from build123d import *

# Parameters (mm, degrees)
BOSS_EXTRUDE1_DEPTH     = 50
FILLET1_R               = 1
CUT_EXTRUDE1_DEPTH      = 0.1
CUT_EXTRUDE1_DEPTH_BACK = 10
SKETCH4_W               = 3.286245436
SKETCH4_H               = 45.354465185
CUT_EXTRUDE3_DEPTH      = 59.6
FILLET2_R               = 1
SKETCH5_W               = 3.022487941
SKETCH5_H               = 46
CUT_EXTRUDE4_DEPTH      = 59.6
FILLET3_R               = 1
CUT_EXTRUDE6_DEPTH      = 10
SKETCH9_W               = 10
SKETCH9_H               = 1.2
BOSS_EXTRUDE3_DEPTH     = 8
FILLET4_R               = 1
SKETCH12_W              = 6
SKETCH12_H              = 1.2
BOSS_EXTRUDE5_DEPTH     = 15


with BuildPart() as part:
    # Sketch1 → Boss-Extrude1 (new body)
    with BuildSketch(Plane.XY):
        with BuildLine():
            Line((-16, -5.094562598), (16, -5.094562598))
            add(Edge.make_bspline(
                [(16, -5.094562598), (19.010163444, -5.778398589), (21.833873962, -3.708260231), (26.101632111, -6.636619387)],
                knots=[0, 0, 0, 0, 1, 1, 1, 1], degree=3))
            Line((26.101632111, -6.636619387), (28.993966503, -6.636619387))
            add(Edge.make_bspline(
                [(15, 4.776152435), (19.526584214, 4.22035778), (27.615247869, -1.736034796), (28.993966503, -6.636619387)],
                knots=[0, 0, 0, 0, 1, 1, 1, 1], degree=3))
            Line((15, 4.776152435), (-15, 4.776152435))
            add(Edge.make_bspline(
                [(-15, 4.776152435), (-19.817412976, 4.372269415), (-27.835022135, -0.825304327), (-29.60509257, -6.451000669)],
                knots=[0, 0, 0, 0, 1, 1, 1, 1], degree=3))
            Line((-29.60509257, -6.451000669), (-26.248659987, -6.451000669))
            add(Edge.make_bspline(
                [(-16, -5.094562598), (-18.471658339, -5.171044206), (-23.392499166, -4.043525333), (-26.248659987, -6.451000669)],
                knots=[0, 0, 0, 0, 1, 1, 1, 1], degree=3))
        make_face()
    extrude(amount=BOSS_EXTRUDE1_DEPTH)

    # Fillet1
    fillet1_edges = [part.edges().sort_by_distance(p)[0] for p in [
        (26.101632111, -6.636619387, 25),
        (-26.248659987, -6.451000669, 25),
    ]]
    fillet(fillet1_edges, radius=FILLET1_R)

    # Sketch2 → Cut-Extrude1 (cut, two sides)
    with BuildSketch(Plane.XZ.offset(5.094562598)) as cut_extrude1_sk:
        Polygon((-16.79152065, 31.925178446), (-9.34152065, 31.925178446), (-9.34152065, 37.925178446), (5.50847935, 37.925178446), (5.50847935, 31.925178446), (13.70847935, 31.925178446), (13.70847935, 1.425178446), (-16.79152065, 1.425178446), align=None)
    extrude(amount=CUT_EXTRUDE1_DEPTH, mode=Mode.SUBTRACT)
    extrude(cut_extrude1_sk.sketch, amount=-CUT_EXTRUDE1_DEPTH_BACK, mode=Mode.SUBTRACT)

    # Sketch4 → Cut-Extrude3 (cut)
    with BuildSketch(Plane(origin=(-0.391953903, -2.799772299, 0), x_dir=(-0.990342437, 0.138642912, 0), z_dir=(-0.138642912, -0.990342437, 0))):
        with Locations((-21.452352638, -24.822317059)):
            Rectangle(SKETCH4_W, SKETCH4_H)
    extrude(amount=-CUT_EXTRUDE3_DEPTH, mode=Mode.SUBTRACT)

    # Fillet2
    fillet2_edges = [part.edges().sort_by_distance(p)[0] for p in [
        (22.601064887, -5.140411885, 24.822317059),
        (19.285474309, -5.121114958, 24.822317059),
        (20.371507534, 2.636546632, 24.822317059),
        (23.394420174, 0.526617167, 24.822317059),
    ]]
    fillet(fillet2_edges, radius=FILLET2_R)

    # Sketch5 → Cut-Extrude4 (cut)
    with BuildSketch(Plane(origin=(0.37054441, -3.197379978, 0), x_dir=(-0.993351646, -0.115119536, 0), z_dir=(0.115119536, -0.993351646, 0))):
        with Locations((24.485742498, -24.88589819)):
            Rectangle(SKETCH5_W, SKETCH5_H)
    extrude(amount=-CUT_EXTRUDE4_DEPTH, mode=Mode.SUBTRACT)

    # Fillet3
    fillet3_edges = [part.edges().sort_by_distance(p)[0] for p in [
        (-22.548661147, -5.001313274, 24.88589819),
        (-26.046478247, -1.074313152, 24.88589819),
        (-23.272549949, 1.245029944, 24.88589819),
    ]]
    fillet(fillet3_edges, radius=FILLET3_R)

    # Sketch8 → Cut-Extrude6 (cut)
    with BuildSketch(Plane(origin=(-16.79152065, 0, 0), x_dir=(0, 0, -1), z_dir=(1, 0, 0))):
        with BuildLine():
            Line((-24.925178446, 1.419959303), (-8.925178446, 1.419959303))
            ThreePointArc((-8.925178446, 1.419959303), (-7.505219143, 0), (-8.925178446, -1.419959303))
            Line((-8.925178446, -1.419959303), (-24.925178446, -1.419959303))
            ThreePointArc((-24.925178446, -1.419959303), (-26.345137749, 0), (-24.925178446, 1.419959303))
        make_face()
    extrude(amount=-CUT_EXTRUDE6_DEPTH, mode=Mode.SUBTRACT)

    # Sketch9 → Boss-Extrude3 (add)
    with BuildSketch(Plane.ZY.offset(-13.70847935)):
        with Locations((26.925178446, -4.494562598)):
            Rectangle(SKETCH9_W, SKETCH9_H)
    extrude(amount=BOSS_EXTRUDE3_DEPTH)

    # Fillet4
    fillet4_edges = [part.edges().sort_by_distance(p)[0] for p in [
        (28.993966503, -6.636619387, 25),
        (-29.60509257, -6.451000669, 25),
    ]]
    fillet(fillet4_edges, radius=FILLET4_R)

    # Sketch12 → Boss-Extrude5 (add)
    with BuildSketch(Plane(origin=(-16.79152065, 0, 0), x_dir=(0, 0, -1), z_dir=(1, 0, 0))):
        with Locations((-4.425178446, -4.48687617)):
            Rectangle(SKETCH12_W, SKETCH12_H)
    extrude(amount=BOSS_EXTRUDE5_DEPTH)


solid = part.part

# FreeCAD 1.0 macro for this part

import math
import FreeCAD as App
import Part
import Sketcher
from FreeCAD import Vector
Q = App.Units.Quantity


def edges_at(feature, points):
    """Names of the edges that pass closest to the given points."""
    edges = feature.Shape.Edges
    near = lambda p: min(range(len(edges)), key=lambda i: edges[i].distToShape(Part.Vertex(*p))[0])
    return sorted({f"Edge{near(p) + 1}" for p in points})


def add_polygon(sketch, points):
    """Adds a closed chain of lines whose ends are joined by coincident constraints."""
    first, n = sketch.GeometryCount, len(points)
    for a, b in zip(points, points[1:] + points[:1]):
        sketch.addGeometry(Part.LineSegment(App.Vector(*a, 0), App.Vector(*b, 0)), False)
    for i in range(n):
        sketch.addConstraint(Sketcher.Constraint("Coincident", first + i, 2, first + (i + 1) % n, 1))

doc = App.newDocument("Part")
params = doc.addObject("Spreadsheet::Sheet", "Params")
for row, (alias, value) in enumerate([
    ("pad1_length", "50 mm"),
    ("fillet_radius", "1 mm"),
    ("sketch2_height", "6 mm"),
    ("sketch2_width", "30.5 mm"),
    ("sketch2_width2", "8.2 mm"),
    ("sketch2_width3", "7.45 mm"),
    ("pocket2_length", "59.6 mm"),
    ("fillet2_radius", "1 mm"),
    ("sketch4_height", "46 mm"),
    ("pocket3_length", "59.6 mm"),
    ("fillet3_radius", "1 mm"),
    ("sketch5_height", "16 mm"),
    ("pocket4_length", "10 mm"),
    ("sketch6_height", "10 mm"),
    ("sketch6_width", "1.2 mm"),
    ("pad2_length", "8 mm"),
    ("fillet4_radius", "1 mm"),
    ("sketch7_height", "6 mm"),
    ("sketch7_width", "1.2 mm"),
    ("pad3_length", "15 mm"),
], start=1):
    params.set(f"A{row}", alias)
    params.set(f"B{row}", "=" + value)
    params.setAlias(f"B{row}", alias)

body = doc.addObject("PartDesign::Body", "Body")

sketch1 = doc.addObject("Sketcher::SketchObject", "Sketch")
body.addObject(sketch1)
sketch1.AttachmentSupport = (doc.XY_Plane, [""])
sketch1.MapMode = "FlatFace"
sketch1.addGeometry(Part.LineSegment(Vector(-16, -5.094563, 0), Vector(16, -5.094563, 0)), False)
sketch1.addGeometry(Part.BSplineCurve([Vector(16, -5.094563, 0), Vector(19.010163, -5.778399, 0), Vector(21.833874, -3.70826, 0), Vector(26.101632, -6.636619, 0)], [4, 4], [0, 1], False, 3, [1, 1, 1, 1], False), False)
sketch1.addGeometry(Part.LineSegment(Vector(26.101632, -6.636619, 0), Vector(28.993967, -6.636619, 0)), False)
sketch1.addGeometry(Part.BSplineCurve([Vector(15, 4.776152, 0), Vector(19.526584, 4.220358, 0), Vector(27.615248, -1.736035, 0), Vector(28.993967, -6.636619, 0)], [4, 4], [0, 1], False, 3, [1, 1, 1, 1], False), False)
sketch1.addGeometry(Part.LineSegment(Vector(15, 4.776152, 0), Vector(-15, 4.776152, 0)), False)
sketch1.addGeometry(Part.BSplineCurve([Vector(-15, 4.776152, 0), Vector(-19.817413, 4.372269, 0), Vector(-27.835022, -0.825304, 0), Vector(-29.605093, -6.451001, 0)], [4, 4], [0, 1], False, 3, [1, 1, 1, 1], False), False)
sketch1.addGeometry(Part.LineSegment(Vector(-29.605093, -6.451001, 0), Vector(-26.24866, -6.451001, 0)), False)
sketch1.addGeometry(Part.BSplineCurve([Vector(-16, -5.094563, 0), Vector(-18.471658, -5.171044, 0), Vector(-23.392499, -4.043525, 0), Vector(-26.24866, -6.451001, 0)], [4, 4], [0, 1], False, 3, [1, 1, 1, 1], False), False)
sketch1.addConstraint(Sketcher.Constraint("Block", 1))
sketch1.addConstraint(Sketcher.Constraint("Block", 3))
sketch1.addConstraint(Sketcher.Constraint("Block", 5))
sketch1.addConstraint(Sketcher.Constraint("Block", 7))
sketch1.addConstraint(Sketcher.Constraint("Coincident", 0, 2, 1, 1))
sketch1.addConstraint(Sketcher.Constraint("Coincident", 1, 2, 2, 1))
sketch1.addConstraint(Sketcher.Constraint("Coincident", 2, 2, 3, 2))
sketch1.addConstraint(Sketcher.Constraint("Coincident", 3, 1, 4, 1))
sketch1.addConstraint(Sketcher.Constraint("Coincident", 4, 2, 5, 1))
sketch1.addConstraint(Sketcher.Constraint("Coincident", 5, 2, 6, 1))
sketch1.addConstraint(Sketcher.Constraint("Coincident", 6, 2, 7, 2))
sketch1.addConstraint(Sketcher.Constraint("Coincident", 7, 1, 0, 1))
pad1 = doc.addObject("PartDesign::Pad", "Pad")
body.addObject(pad1)
pad1.Profile = sketch1
pad1.setExpression("Length", "Params.pad1_length")
doc.recompute()

fillet = doc.addObject("PartDesign::Fillet", "Fillet")
body.addObject(fillet)
fillet.Base = (pad1, edges_at(pad1, [(26.102, -6.637, 25), (-26.249, -6.451, 25)]))
fillet.setExpression("Radius", "Params.fillet_radius")

sketch2 = doc.addObject("Sketcher::SketchObject", "Sketch001")
body.addObject(sketch2)
sketch2.AttachmentSupport = (doc.XZ_Plane, [""])
sketch2.MapMode = "FlatFace"
sketch2.AttachmentOffset = App.Placement(Vector(0, 0, 5.094563), App.Rotation())
add_polygon(sketch2, [(-9, 32), (-17, 32), (-17, 1), (14, 1), (14, 32), (6, 32), (6, 38), (-9, 38)])
sketch2.addConstraint(Sketcher.Constraint("Horizontal", 0))
sketch2.addConstraint(Sketcher.Constraint("Vertical", 1))
sketch2.addConstraint(Sketcher.Constraint("Horizontal", 2))
sketch2.addConstraint(Sketcher.Constraint("Vertical", 3))
sketch2.addConstraint(Sketcher.Constraint("Horizontal", 4))
sketch2.addConstraint(Sketcher.Constraint("Vertical", 5))
sketch2.addConstraint(Sketcher.Constraint("Horizontal", 6))
sketch2.addConstraint(Sketcher.Constraint("Vertical", 7))
sketch2.addConstraint(Sketcher.Constraint("Horizontal", 0, 2, 3, 2))
sketch2.addConstraint(Sketcher.Constraint("Equal", 2, 1))
sketch2.addConstraint(Sketcher.Constraint("DistanceY", 5, 1, 5, 2, Q("6 mm")))
sketch2.addConstraint(Sketcher.Constraint("DistanceX", 2, 1, 2, 2, Q("30.5 mm")))
sketch2.addConstraint(Sketcher.Constraint("DistanceX", 4, 2, 4, 1, Q("8.2 mm")))
sketch2.addConstraint(Sketcher.Constraint("DistanceX", 0, 2, 0, 1, Q("7.45 mm")))
sketch2.addConstraint(Sketcher.Constraint("DistanceX", 0, 2, -1, 1, Q("16.791521 mm")))
sketch2.addConstraint(Sketcher.Constraint("DistanceY", -1, 1, 0, 2, Q("31.925178 mm")))
sketch2.setExpression("Constraints[18]", "Params.sketch2_height")
sketch2.setExpression("Constraints[19]", "Params.sketch2_width")
sketch2.setExpression("Constraints[20]", "Params.sketch2_width2")
sketch2.setExpression("Constraints[21]", "Params.sketch2_width3")
pocket1 = doc.addObject("PartDesign::Pocket", "Pocket")
body.addObject(pocket1)
pocket1.Profile = sketch2
pocket1.Type = "ThroughAll"
pocket1.Midplane = True

sketch3 = doc.addObject("Sketcher::SketchObject", "Sketch002")
body.addObject(sketch3)
sketch3.Placement = App.Placement(Vector(-0.391954, -2.799772, 0), App.Rotation(Vector(-0.990342437, 0.138642912, 0), Vector(0, 0, -1), Vector(-0.138642912, -0.990342437, 0), "ZXY"))
add_polygon(sketch3, [(-23.1, -2.1), (-23.1, -47.5), (-19.8, -47.5), (-19.8, -2.1)])
sketch3.addConstraint(Sketcher.Constraint("Vertical", 0))
sketch3.addConstraint(Sketcher.Constraint("Horizontal", 1))
sketch3.addConstraint(Sketcher.Constraint("Vertical", 2))
sketch3.addConstraint(Sketcher.Constraint("Horizontal", 3))
sketch3.addConstraint(Sketcher.Constraint("DistanceX", 1, 1, 1, 2, Q("3.286245 mm")))
sketch3.addConstraint(Sketcher.Constraint("DistanceY", 0, 2, 0, 1, Q("45.354465 mm")))
sketch3.addConstraint(Sketcher.Constraint("DistanceY", 0, 2, -1, 1, Q("47.49955 mm")))
sketch3.addConstraint(Sketcher.Constraint("DistanceX", 1, 2, -1, 1, Q("19.80923 mm")))
pocket2 = doc.addObject("PartDesign::Pocket", "Pocket001")
body.addObject(pocket2)
pocket2.Profile = sketch3
pocket2.setExpression("Length", "Params.pocket2_length")
doc.recompute()

fillet2 = doc.addObject("PartDesign::Fillet", "Fillet001")
body.addObject(fillet2)
fillet2.Base = (pocket2, edges_at(pocket2, [
    (22.601, -5.14, 24.822),
    (19.285, -5.121, 24.822),
    (20.372, 2.637, 24.822),
    (23.394, 0.527, 24.822),
]))
fillet2.setExpression("Radius", "Params.fillet2_radius")

sketch4 = doc.addObject("Sketcher::SketchObject", "Sketch003")
body.addObject(sketch4)
sketch4.Placement = App.Placement(Vector(0.370544, -3.19738, 0), App.Rotation(Vector(-0.993351646, -0.115119536, 0), Vector(0, 0, -1), Vector(0.115119536, -0.993351646, 0), "ZXY"))
add_polygon(sketch4, [(23, -1.9), (23, -47.9), (26, -47.9), (26, -1.9)])
sketch4.addConstraint(Sketcher.Constraint("Vertical", 0))
sketch4.addConstraint(Sketcher.Constraint("Horizontal", 1))
sketch4.addConstraint(Sketcher.Constraint("Vertical", 2))
sketch4.addConstraint(Sketcher.Constraint("Horizontal", 3))
sketch4.addConstraint(Sketcher.Constraint("DistanceY", 0, 2, 0, 1, Q("46 mm")))
sketch4.addConstraint(Sketcher.Constraint("DistanceX", -1, 1, 0, 2, Q("22.974499 mm")))
sketch4.addConstraint(Sketcher.Constraint("DistanceY", 0, 2, -1, 1, Q("47.885898 mm")))
sketch4.addConstraint(Sketcher.Constraint("DistanceX", 1, 1, 1, 2, Q("3.022488 mm")))
sketch4.setExpression("Constraints[8]", "Params.sketch4_height")
pocket3 = doc.addObject("PartDesign::Pocket", "Pocket002")
body.addObject(pocket3)
pocket3.Profile = sketch4
pocket3.setExpression("Length", "Params.pocket3_length")
doc.recompute()

fillet3 = doc.addObject("PartDesign::Fillet", "Fillet002")
body.addObject(fillet3)
fillet3.Base = (pocket3, edges_at(pocket3, [(-22.549, -5.001, 24.886), (-26.046, -1.074, 24.886), (-23.273, 1.245, 24.886)]))
fillet3.setExpression("Radius", "Params.fillet3_radius")

sketch5 = doc.addObject("Sketcher::SketchObject", "Sketch004")
body.addObject(sketch5)
sketch5.AttachmentSupport = (doc.YZ_Plane, [""])
sketch5.MapMode = "FlatFace"
sketch5.AttachmentOffset = App.Placement(Vector(0, 0, -16.791521), App.Rotation())
sketch5.addGeometry(Part.LineSegment(Vector(1.4, 8.9, 0), Vector(1.4, 24.9, 0)), False)
sketch5.addGeometry(Part.ArcOfCircle(Part.Circle(Vector(0, 24.9, 0), Vector(0, 0, 1), 1.4), math.radians(0), math.radians(180)), False)
sketch5.addGeometry(Part.LineSegment(Vector(-1.4, 24.9, 0), Vector(-1.4, 8.9, 0)), False)
sketch5.addGeometry(Part.ArcOfCircle(Part.Circle(Vector(0, 8.9, 0), Vector(0, 0, 1), 1.4), math.radians(180), math.radians(360)), False)
sketch5.addConstraint(Sketcher.Constraint("Tangent", 0, 2, 1, 1))
sketch5.addConstraint(Sketcher.Constraint("Tangent", 1, 2, 2, 1))
sketch5.addConstraint(Sketcher.Constraint("Tangent", 2, 2, 3, 1))
sketch5.addConstraint(Sketcher.Constraint("Tangent", 3, 2, 0, 1))
sketch5.addConstraint(Sketcher.Constraint("Vertical", 0))
sketch5.addConstraint(Sketcher.Constraint("Vertical", 2))
sketch5.addConstraint(Sketcher.Constraint("PointOnObject", 1, 3, -2))
sketch5.addConstraint(Sketcher.Constraint("DistanceY", 0, 1, 0, 2, Q("16 mm")))
sketch5.addConstraint(Sketcher.Constraint("Radius", 1, Q("1.419959 mm")))
sketch5.addConstraint(Sketcher.Constraint("DistanceY", -1, 1, 1, 3, Q("24.925178 mm")))
sketch5.setExpression("Constraints[7]", "Params.sketch5_height")
pocket4 = doc.addObject("PartDesign::Pocket", "Pocket003")
body.addObject(pocket4)
pocket4.Profile = sketch5
pocket4.setExpression("Length", "Params.pocket4_length")

sketch6 = doc.addObject("Sketcher::SketchObject", "Sketch005")
body.addObject(sketch6)
sketch6.AttachmentSupport = (doc.YZ_Plane, [""])
sketch6.MapMode = "FlatFace"
sketch6.AttachmentOffset = App.Placement(Vector(0, 0, 13.708479), App.Rotation())
add_polygon(sketch6, [(-3.9, 21.9), (-5.1, 21.9), (-5.1, 31.9), (-3.9, 31.9)])
sketch6.addConstraint(Sketcher.Constraint("Horizontal", 0))
sketch6.addConstraint(Sketcher.Constraint("Vertical", 1))
sketch6.addConstraint(Sketcher.Constraint("Horizontal", 2))
sketch6.addConstraint(Sketcher.Constraint("Vertical", 3))
sketch6.addConstraint(Sketcher.Constraint("DistanceY", 1, 1, 1, 2, Q("10 mm")))
sketch6.addConstraint(Sketcher.Constraint("DistanceX", 0, 2, 0, 1, Q("1.2 mm")))
sketch6.addConstraint(Sketcher.Constraint("DistanceY", -1, 1, 0, 2, Q("21.925178 mm")))
sketch6.addConstraint(Sketcher.Constraint("DistanceX", 0, 2, -1, 1, Q("5.094563 mm")))
sketch6.setExpression("Constraints[8]", "Params.sketch6_height")
sketch6.setExpression("Constraints[9]", "Params.sketch6_width")
pad2 = doc.addObject("PartDesign::Pad", "Pad001")
body.addObject(pad2)
pad2.Profile = sketch6
pad2.setExpression("Length", "Params.pad2_length")
pad2.Reversed = True
doc.recompute()

fillet4 = doc.addObject("PartDesign::Fillet", "Fillet003")
body.addObject(fillet4)
fillet4.Base = (pad2, edges_at(pad2, [(28.994, -6.637, 25), (-29.605, -6.451, 25)]))
fillet4.setExpression("Radius", "Params.fillet4_radius")

sketch7 = doc.addObject("Sketcher::SketchObject", "Sketch006")
body.addObject(sketch7)
sketch7.AttachmentSupport = (doc.YZ_Plane, [""])
sketch7.MapMode = "FlatFace"
sketch7.AttachmentOffset = App.Placement(Vector(0, 0, -16.791521), App.Rotation())
add_polygon(sketch7, [(-3.9, 7.4), (-5.1, 7.4), (-5.1, 1.4), (-3.9, 1.4)])
sketch7.addConstraint(Sketcher.Constraint("Horizontal", 0))
sketch7.addConstraint(Sketcher.Constraint("Vertical", 1))
sketch7.addConstraint(Sketcher.Constraint("Horizontal", 2))
sketch7.addConstraint(Sketcher.Constraint("Vertical", 3))
sketch7.addConstraint(Sketcher.Constraint("DistanceY", 1, 2, 1, 1, Q("6 mm")))
sketch7.addConstraint(Sketcher.Constraint("DistanceX", 0, 2, 0, 1, Q("1.2 mm")))
sketch7.addConstraint(Sketcher.Constraint("DistanceY", -1, 1, 0, 2, Q("7.425178 mm")))
sketch7.addConstraint(Sketcher.Constraint("DistanceX", 0, 2, -1, 1, Q("5.086876 mm")))
sketch7.setExpression("Constraints[8]", "Params.sketch7_height")
sketch7.setExpression("Constraints[9]", "Params.sketch7_width")
pad3 = doc.addObject("PartDesign::Pad", "Pad002")
body.addObject(pad3)
pad3.Profile = sketch7
pad3.setExpression("Length", "Params.pad3_length")

doc.recompute()
